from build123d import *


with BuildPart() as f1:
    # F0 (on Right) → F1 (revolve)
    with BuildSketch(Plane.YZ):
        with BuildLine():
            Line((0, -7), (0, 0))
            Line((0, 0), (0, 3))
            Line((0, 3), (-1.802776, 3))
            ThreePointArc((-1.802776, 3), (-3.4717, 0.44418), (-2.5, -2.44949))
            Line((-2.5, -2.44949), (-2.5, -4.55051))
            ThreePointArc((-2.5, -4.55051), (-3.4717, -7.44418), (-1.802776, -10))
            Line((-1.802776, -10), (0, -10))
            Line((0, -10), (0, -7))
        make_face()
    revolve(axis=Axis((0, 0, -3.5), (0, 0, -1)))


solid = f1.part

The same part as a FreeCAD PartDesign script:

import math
import FreeCAD as App
import Part
import Sketcher
Q = App.Units.Quantity

doc = App.newDocument("Part")
body = doc.addObject("PartDesign::Body", "Body")

# Sketch on YZ plane
sketch1 = doc.addObject("Sketcher::SketchObject", "Sketch")
body.addObject(sketch1)
sketch1.AttachmentSupport = (doc.YZ_Plane, [""])
sketch1.MapMode = "FlatFace"
sketch1.addGeometry(Part.LineSegment(App.Vector(0, 3, 0), App.Vector(-1.8, 3, 0)), False)
sketch1.addGeometry(Part.ArcOfCircle(Part.Circle(App.Vector(0, 0, 0), App.Vector(0, 0, 1), 3.5), math.radians(121), math.radians(224)), False)
sketch1.addGeometry(Part.LineSegment(App.Vector(-2.5, -2.4, 0), App.Vector(-2.5, -4.6, 0)), False)
sketch1.addGeometry(Part.ArcOfCircle(Part.Circle(App.Vector(0, -7, 0), App.Vector(0, 0, 1), 3.5), math.radians(136), math.radians(239)), False)
sketch1.addGeometry(Part.LineSegment(App.Vector(-1.8, -10, 0), App.Vector(0, -10, 0)), False)
sketch1.addGeometry(Part.LineSegment(App.Vector(0, -10, 0), App.Vector(0, 3, 0)), False)
sketch1.addConstraint(Sketcher.Constraint("Coincident", 0, 2, 1, 1))
sketch1.addConstraint(Sketcher.Constraint("Coincident", 1, 2, 2, 1))
sketch1.addConstraint(Sketcher.Constraint("Coincident", 2, 2, 3, 1))
sketch1.addConstraint(Sketcher.Constraint("Coincident", 3, 2, 4, 1))
sketch1.addConstraint(Sketcher.Constraint("Coincident", 4, 2, 5, 1))
sketch1.addConstraint(Sketcher.Constraint("Coincident", 5, 2, 0, 1))
sketch1.addConstraint(Sketcher.Constraint("Horizontal", 0))
sketch1.addConstraint(Sketcher.Constraint("Vertical", 2))
sketch1.addConstraint(Sketcher.Constraint("Horizontal", 4))
sketch1.addConstraint(Sketcher.Constraint("Vertical", 5))
sketch1.addConstraint(Sketcher.Constraint("Coincident", 1, 3, -1, 1))
sketch1.addConstraint(Sketcher.Constraint("Equal", 1, 3))
sketch1.addConstraint(Sketcher.Constraint("PointOnObject", 3, 3, -2))
sketch1.addConstraint(Sketcher.Constraint("PointOnObject", 4, 2, -2))
sketch1.addConstraint(Sketcher.Constraint("Vertical", 0, 2, 3, 2))
sketch1.addConstraint(Sketcher.Constraint("Radius", 1, Q("3.500001 mm")))
sketch1.addConstraint(Sketcher.Constraint("DistanceY", 5, 1, 5, 2, Q("13 mm")))
sketch1.addConstraint(Sketcher.Constraint("DistanceY", 3, 3, -1, 1, Q("7 mm")))
sketch1.addConstraint(Sketcher.Constraint("DistanceX", 1, 2, -1, 1, Q("2.5 mm")))
revolution = doc.addObject("PartDesign::Revolution", "Revolution")
body.addObject(revolution)
revolution.Profile = sketch1
revolution.ReferenceAxis = (sketch1, ["V_Axis"])
revolution.Angle = 360

doc.recompute()
